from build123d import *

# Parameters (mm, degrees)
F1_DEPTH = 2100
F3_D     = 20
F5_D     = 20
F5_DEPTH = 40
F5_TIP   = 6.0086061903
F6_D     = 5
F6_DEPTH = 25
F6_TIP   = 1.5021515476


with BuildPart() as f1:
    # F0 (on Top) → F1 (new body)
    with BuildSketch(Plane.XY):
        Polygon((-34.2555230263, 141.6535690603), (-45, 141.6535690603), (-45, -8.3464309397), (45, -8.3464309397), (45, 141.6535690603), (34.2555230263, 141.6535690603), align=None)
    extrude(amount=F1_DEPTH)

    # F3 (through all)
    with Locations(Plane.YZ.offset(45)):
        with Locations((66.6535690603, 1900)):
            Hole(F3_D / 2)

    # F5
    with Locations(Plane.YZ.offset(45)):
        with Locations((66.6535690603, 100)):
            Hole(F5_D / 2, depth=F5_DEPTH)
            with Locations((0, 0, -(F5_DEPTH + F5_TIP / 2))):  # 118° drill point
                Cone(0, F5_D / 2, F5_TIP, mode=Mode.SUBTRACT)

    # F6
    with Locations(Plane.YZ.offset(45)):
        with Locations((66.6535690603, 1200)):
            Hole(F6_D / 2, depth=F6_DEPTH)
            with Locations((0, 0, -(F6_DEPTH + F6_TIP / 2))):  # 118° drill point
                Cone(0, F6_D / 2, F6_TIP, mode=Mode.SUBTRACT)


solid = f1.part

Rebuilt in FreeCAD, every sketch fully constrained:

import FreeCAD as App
import Part
import Sketcher
from FreeCAD import Vector

doc = App.newDocument("Part")
body = doc.addObject("PartDesign::Body", "Body")

sketch1 = doc.addObject("Sketcher::SketchObject", "Sketch")
body.addObject(sketch1)
sketch1.AttachmentSupport = (doc.XY_Plane, [""])
sketch1.MapMode = "FlatFace"
sketch1.addGeometry(Part.LineSegment(Vector(-45, 142, 0), Vector(-45, -8, 0)), False)
sketch1.addGeometry(Part.LineSegment(Vector(-45, -8, 0), Vector(45, -8, 0)), False)
sketch1.addGeometry(Part.LineSegment(Vector(45, -8, 0), Vector(45, 142, 0)), False)
sketch1.addGeometry(Part.LineSegment(Vector(45, 142, 0), Vector(-45, 142, 0)), False)
sketch1.addConstraint(Sketcher.Constraint("Coincident", 0, 2, 1, 1))
sketch1.addConstraint(Sketcher.Constraint("Coincident", 1, 2, 2, 1))
sketch1.addConstraint(Sketcher.Constraint("Coincident", 2, 2, 3, 1))
sketch1.addConstraint(Sketcher.Constraint("Coincident", 3, 2, 0, 1))
sketch1.addConstraint(Sketcher.Constraint("Vertical", 0))
sketch1.addConstraint(Sketcher.Constraint("Horizontal", 1))
sketch1.addConstraint(Sketcher.Constraint("Vertical", 2))
sketch1.addConstraint(Sketcher.Constraint("Horizontal", 3))
sketch1.addConstraint(Sketcher.Constraint("DistanceX", 1, 1, 1, 2, 90.0))
sketch1.addConstraint(Sketcher.Constraint("DistanceY", 0, 2, 0, 1, 150.0))
sketch1.addConstraint(Sketcher.Constraint("DistanceX", 0, 2, -1, 1, 45.0))
sketch1.addConstraint(Sketcher.Constraint("DistanceY", 0, 2, -1, 1, 8.346431))
pad1 = doc.addObject("PartDesign::Pad", "Pad")
body.addObject(pad1)
pad1.Profile = sketch1
pad1.Length = 2100

sketch2 = doc.addObject("Sketcher::SketchObject", "Sketch001")
body.addObject(sketch2)
sketch2.AttachmentSupport = (doc.YZ_Plane, [""])
sketch2.MapMode = "FlatFace"
sketch2.AttachmentOffset = App.Placement(Vector(0, 0, 45), App.Rotation())
sketch2.addGeometry(Part.Circle(Vector(67, 1900, 0), Vector(0, 0, 1), 10), False)
sketch2.addConstraint(Sketcher.Constraint("Diameter", 0, 20.0))
sketch2.addConstraint(Sketcher.Constraint("DistanceY", -1, 1, 0, 3, 1900.0))
sketch2.addConstraint(Sketcher.Constraint("DistanceX", -1, 1, 0, 3, 66.653569))
doc.recompute()
hole = doc.addObject("PartDesign::Hole", "Hole")
body.addObject(hole)
hole.Profile = sketch2
hole.ThreadType = "None"
hole.Diameter = 20
hole.DepthType = "ThroughAll"

sketch3 = doc.addObject("Sketcher::SketchObject", "Sketch002")
body.addObject(sketch3)
sketch3.AttachmentSupport = (doc.YZ_Plane, [""])
sketch3.MapMode = "FlatFace"
sketch3.AttachmentOffset = App.Placement(Vector(0, 0, 45), App.Rotation())
sketch3.addGeometry(Part.Circle(Vector(67, 100, 0), Vector(0, 0, 1), 10), False)
sketch3.addConstraint(Sketcher.Constraint("Diameter", 0, 20.0))
sketch3.addConstraint(Sketcher.Constraint("DistanceY", -1, 1, 0, 3, 100.0))
sketch3.addConstraint(Sketcher.Constraint("DistanceX", -1, 1, 0, 3, 66.653569))
doc.recompute()
hole2 = doc.addObject("PartDesign::Hole", "Hole001")
body.addObject(hole2)
hole2.Profile = sketch3
hole2.ThreadType = "None"
hole2.Diameter = 20
hole2.DepthType = "Dimension"
hole2.Depth = 40
hole2.DrillPoint = "Angled"
hole2.DrillPointAngle = 118

sketch4 = doc.addObject("Sketcher::SketchObject", "Sketch003")
body.addObject(sketch4)
sketch4.AttachmentSupport = (doc.YZ_Plane, [""])
sketch4.MapMode = "FlatFace"
sketch4.AttachmentOffset = App.Placement(Vector(0, 0, 45), App.Rotation())
sketch4.addGeometry(Part.Circle(Vector(66.7, 1200, 0), Vector(0, 0, 1), 2.5), False)
sketch4.addConstraint(Sketcher.Constraint("Diameter", 0, 5.0))
sketch4.addConstraint(Sketcher.Constraint("DistanceY", -1, 1, 0, 3, 1200.0))
sketch4.addConstraint(Sketcher.Constraint("DistanceX", -1, 1, 0, 3, 66.653569))
doc.recompute()
hole3 = doc.addObject("PartDesign::Hole", "Hole002")
body.addObject(hole3)
hole3.Profile = sketch4
hole3.ThreadType = "None"
hole3.Diameter = 5
hole3.DepthType = "Dimension"
hole3.Depth = 25
hole3.DrillPoint = "Angled"
hole3.DrillPointAngle = 118

doc.recompute()
